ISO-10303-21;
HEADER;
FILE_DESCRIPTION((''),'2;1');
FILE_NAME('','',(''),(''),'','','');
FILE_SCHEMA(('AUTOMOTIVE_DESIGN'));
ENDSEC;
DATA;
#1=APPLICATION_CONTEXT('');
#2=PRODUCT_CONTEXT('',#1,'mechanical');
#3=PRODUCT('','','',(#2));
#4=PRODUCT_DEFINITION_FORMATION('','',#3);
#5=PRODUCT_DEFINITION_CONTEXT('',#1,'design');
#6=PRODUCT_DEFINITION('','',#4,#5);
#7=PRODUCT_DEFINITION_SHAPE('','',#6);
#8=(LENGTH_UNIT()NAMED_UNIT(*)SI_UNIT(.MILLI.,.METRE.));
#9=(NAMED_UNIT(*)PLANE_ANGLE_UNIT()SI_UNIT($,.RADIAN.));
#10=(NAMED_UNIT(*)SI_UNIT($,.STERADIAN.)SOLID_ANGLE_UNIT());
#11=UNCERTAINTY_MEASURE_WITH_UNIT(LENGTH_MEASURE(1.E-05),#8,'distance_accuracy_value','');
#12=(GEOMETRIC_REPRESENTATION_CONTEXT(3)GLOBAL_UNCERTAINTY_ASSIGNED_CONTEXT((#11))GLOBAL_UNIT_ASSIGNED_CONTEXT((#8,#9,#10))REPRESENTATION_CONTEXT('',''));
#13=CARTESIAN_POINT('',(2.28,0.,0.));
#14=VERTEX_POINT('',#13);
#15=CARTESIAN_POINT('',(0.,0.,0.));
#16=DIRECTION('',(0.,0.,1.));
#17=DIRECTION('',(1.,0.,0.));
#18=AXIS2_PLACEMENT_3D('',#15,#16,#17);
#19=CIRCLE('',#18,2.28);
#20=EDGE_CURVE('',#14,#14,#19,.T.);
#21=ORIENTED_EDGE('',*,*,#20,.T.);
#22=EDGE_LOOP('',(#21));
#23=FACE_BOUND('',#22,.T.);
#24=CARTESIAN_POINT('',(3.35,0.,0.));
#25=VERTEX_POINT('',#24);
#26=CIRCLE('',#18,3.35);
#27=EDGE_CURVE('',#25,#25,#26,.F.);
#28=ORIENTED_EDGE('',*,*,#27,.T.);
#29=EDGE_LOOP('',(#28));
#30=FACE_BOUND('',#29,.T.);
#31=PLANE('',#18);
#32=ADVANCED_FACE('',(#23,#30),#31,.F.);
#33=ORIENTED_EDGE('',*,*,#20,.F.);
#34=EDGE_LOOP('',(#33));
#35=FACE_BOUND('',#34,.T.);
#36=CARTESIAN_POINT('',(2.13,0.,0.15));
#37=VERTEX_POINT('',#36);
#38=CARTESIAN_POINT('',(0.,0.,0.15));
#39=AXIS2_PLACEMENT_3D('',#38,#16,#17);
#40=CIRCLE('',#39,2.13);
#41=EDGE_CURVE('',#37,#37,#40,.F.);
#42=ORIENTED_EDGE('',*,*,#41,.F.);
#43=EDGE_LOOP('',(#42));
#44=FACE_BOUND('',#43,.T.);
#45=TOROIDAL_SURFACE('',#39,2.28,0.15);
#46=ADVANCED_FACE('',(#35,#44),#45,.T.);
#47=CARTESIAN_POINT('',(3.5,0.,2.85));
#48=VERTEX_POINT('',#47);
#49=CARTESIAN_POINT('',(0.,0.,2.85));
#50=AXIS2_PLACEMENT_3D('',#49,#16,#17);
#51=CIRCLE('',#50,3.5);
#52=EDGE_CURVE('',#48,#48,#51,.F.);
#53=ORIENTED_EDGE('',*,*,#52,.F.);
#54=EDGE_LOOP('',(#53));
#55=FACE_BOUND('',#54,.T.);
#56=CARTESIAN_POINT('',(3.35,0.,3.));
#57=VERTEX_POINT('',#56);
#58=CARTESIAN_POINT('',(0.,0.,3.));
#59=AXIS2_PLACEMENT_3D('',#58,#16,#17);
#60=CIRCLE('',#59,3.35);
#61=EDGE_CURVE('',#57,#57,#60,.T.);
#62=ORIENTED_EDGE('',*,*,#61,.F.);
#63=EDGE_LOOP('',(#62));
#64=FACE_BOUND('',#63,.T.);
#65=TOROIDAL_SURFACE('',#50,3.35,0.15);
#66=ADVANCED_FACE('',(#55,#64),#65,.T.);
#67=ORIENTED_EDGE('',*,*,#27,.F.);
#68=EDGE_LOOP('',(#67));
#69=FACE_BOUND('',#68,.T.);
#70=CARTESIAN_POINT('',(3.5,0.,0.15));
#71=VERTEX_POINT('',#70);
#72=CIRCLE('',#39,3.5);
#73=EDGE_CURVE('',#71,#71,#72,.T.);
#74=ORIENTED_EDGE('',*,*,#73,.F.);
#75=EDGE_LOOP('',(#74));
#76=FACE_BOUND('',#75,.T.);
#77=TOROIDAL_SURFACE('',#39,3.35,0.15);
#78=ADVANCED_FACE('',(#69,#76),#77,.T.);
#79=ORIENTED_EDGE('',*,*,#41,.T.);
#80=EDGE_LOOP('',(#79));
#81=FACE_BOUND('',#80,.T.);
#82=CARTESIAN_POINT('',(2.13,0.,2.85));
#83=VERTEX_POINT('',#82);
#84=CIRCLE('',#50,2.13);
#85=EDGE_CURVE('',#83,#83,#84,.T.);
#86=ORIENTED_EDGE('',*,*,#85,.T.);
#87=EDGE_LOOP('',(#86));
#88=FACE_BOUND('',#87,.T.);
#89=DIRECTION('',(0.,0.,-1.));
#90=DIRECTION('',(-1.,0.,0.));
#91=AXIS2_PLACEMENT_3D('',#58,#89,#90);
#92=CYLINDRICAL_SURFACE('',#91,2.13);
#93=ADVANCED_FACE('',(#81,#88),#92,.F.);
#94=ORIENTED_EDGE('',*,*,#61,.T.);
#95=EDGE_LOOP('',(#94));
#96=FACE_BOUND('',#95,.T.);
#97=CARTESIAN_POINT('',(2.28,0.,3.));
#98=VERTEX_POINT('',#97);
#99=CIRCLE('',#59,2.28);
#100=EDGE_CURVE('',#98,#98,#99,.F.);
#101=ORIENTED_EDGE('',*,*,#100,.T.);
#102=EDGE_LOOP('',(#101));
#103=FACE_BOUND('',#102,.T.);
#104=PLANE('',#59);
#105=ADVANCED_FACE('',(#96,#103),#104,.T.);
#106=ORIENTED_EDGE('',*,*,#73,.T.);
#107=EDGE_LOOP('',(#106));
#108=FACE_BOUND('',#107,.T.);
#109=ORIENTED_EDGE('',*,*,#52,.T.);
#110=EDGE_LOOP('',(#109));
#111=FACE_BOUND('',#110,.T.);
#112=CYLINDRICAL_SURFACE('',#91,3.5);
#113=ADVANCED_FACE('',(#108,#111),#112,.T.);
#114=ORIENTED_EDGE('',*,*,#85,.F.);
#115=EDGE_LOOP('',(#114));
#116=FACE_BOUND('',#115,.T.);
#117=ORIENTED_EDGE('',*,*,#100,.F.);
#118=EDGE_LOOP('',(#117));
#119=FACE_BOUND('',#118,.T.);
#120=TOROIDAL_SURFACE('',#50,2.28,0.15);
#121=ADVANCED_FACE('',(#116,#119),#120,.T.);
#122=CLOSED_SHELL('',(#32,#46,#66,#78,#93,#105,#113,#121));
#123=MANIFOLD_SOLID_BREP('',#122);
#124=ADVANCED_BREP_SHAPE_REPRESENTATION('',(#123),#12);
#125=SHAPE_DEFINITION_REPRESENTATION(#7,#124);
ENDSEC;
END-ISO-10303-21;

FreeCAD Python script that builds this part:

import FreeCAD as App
import Part
import Sketcher

V = App.Vector
Q = App.Units.Quantity


def edges_at(feature, points):
    """Names of the edges that pass closest to the given points."""
    edges = feature.Shape.Edges
    near = lambda p: min(range(len(edges)), key=lambda i: edges[i].distToShape(Part.Vertex(*p))[0])
    return sorted({f"Edge{near(p) + 1}" for p in points})

doc = App.newDocument("Part")
body = doc.addObject("PartDesign::Body", "Body")

# Sketch on XY plane
sketch1 = body.newObject("Sketcher::SketchObject", "Sketch")
sketch1.AttachmentSupport = (doc.getObject("XY_Plane"), [""])
sketch1.MapMode = "FlatFace"
sketch1.addGeometry([
    Part.Circle(V(0, 0, 0), V(0, 0, 1), 3.5),
    Part.Circle(V(0, 0, 0), V(0, 0, 1), 2.1),
], False)
sketch1.addConstraint([
    Sketcher.Constraint("Coincident", 0, 3, -1, 1),
    Sketcher.Constraint("Coincident", 1, 3, -1, 1),
    Sketcher.Constraint("Diameter", 0, Q("7 mm")),
    Sketcher.Constraint("Diameter", 1, Q("4.26 mm")),
])
pad1 = body.newObject("PartDesign::Pad", "Pad")
pad1.Profile = sketch1
pad1.Length = 3
doc.recompute()

fillet = body.newObject("PartDesign::Fillet", "Fillet")
fillet.Base = (pad1, edges_at(pad1, [
    (-3.5, 0, 0),
    (-3.5, 0, 3),
    (-2.13, 0, 0),
    (-2.13, 0, 3),
]))
fillet.Radius = 0.15

doc.recompute()
